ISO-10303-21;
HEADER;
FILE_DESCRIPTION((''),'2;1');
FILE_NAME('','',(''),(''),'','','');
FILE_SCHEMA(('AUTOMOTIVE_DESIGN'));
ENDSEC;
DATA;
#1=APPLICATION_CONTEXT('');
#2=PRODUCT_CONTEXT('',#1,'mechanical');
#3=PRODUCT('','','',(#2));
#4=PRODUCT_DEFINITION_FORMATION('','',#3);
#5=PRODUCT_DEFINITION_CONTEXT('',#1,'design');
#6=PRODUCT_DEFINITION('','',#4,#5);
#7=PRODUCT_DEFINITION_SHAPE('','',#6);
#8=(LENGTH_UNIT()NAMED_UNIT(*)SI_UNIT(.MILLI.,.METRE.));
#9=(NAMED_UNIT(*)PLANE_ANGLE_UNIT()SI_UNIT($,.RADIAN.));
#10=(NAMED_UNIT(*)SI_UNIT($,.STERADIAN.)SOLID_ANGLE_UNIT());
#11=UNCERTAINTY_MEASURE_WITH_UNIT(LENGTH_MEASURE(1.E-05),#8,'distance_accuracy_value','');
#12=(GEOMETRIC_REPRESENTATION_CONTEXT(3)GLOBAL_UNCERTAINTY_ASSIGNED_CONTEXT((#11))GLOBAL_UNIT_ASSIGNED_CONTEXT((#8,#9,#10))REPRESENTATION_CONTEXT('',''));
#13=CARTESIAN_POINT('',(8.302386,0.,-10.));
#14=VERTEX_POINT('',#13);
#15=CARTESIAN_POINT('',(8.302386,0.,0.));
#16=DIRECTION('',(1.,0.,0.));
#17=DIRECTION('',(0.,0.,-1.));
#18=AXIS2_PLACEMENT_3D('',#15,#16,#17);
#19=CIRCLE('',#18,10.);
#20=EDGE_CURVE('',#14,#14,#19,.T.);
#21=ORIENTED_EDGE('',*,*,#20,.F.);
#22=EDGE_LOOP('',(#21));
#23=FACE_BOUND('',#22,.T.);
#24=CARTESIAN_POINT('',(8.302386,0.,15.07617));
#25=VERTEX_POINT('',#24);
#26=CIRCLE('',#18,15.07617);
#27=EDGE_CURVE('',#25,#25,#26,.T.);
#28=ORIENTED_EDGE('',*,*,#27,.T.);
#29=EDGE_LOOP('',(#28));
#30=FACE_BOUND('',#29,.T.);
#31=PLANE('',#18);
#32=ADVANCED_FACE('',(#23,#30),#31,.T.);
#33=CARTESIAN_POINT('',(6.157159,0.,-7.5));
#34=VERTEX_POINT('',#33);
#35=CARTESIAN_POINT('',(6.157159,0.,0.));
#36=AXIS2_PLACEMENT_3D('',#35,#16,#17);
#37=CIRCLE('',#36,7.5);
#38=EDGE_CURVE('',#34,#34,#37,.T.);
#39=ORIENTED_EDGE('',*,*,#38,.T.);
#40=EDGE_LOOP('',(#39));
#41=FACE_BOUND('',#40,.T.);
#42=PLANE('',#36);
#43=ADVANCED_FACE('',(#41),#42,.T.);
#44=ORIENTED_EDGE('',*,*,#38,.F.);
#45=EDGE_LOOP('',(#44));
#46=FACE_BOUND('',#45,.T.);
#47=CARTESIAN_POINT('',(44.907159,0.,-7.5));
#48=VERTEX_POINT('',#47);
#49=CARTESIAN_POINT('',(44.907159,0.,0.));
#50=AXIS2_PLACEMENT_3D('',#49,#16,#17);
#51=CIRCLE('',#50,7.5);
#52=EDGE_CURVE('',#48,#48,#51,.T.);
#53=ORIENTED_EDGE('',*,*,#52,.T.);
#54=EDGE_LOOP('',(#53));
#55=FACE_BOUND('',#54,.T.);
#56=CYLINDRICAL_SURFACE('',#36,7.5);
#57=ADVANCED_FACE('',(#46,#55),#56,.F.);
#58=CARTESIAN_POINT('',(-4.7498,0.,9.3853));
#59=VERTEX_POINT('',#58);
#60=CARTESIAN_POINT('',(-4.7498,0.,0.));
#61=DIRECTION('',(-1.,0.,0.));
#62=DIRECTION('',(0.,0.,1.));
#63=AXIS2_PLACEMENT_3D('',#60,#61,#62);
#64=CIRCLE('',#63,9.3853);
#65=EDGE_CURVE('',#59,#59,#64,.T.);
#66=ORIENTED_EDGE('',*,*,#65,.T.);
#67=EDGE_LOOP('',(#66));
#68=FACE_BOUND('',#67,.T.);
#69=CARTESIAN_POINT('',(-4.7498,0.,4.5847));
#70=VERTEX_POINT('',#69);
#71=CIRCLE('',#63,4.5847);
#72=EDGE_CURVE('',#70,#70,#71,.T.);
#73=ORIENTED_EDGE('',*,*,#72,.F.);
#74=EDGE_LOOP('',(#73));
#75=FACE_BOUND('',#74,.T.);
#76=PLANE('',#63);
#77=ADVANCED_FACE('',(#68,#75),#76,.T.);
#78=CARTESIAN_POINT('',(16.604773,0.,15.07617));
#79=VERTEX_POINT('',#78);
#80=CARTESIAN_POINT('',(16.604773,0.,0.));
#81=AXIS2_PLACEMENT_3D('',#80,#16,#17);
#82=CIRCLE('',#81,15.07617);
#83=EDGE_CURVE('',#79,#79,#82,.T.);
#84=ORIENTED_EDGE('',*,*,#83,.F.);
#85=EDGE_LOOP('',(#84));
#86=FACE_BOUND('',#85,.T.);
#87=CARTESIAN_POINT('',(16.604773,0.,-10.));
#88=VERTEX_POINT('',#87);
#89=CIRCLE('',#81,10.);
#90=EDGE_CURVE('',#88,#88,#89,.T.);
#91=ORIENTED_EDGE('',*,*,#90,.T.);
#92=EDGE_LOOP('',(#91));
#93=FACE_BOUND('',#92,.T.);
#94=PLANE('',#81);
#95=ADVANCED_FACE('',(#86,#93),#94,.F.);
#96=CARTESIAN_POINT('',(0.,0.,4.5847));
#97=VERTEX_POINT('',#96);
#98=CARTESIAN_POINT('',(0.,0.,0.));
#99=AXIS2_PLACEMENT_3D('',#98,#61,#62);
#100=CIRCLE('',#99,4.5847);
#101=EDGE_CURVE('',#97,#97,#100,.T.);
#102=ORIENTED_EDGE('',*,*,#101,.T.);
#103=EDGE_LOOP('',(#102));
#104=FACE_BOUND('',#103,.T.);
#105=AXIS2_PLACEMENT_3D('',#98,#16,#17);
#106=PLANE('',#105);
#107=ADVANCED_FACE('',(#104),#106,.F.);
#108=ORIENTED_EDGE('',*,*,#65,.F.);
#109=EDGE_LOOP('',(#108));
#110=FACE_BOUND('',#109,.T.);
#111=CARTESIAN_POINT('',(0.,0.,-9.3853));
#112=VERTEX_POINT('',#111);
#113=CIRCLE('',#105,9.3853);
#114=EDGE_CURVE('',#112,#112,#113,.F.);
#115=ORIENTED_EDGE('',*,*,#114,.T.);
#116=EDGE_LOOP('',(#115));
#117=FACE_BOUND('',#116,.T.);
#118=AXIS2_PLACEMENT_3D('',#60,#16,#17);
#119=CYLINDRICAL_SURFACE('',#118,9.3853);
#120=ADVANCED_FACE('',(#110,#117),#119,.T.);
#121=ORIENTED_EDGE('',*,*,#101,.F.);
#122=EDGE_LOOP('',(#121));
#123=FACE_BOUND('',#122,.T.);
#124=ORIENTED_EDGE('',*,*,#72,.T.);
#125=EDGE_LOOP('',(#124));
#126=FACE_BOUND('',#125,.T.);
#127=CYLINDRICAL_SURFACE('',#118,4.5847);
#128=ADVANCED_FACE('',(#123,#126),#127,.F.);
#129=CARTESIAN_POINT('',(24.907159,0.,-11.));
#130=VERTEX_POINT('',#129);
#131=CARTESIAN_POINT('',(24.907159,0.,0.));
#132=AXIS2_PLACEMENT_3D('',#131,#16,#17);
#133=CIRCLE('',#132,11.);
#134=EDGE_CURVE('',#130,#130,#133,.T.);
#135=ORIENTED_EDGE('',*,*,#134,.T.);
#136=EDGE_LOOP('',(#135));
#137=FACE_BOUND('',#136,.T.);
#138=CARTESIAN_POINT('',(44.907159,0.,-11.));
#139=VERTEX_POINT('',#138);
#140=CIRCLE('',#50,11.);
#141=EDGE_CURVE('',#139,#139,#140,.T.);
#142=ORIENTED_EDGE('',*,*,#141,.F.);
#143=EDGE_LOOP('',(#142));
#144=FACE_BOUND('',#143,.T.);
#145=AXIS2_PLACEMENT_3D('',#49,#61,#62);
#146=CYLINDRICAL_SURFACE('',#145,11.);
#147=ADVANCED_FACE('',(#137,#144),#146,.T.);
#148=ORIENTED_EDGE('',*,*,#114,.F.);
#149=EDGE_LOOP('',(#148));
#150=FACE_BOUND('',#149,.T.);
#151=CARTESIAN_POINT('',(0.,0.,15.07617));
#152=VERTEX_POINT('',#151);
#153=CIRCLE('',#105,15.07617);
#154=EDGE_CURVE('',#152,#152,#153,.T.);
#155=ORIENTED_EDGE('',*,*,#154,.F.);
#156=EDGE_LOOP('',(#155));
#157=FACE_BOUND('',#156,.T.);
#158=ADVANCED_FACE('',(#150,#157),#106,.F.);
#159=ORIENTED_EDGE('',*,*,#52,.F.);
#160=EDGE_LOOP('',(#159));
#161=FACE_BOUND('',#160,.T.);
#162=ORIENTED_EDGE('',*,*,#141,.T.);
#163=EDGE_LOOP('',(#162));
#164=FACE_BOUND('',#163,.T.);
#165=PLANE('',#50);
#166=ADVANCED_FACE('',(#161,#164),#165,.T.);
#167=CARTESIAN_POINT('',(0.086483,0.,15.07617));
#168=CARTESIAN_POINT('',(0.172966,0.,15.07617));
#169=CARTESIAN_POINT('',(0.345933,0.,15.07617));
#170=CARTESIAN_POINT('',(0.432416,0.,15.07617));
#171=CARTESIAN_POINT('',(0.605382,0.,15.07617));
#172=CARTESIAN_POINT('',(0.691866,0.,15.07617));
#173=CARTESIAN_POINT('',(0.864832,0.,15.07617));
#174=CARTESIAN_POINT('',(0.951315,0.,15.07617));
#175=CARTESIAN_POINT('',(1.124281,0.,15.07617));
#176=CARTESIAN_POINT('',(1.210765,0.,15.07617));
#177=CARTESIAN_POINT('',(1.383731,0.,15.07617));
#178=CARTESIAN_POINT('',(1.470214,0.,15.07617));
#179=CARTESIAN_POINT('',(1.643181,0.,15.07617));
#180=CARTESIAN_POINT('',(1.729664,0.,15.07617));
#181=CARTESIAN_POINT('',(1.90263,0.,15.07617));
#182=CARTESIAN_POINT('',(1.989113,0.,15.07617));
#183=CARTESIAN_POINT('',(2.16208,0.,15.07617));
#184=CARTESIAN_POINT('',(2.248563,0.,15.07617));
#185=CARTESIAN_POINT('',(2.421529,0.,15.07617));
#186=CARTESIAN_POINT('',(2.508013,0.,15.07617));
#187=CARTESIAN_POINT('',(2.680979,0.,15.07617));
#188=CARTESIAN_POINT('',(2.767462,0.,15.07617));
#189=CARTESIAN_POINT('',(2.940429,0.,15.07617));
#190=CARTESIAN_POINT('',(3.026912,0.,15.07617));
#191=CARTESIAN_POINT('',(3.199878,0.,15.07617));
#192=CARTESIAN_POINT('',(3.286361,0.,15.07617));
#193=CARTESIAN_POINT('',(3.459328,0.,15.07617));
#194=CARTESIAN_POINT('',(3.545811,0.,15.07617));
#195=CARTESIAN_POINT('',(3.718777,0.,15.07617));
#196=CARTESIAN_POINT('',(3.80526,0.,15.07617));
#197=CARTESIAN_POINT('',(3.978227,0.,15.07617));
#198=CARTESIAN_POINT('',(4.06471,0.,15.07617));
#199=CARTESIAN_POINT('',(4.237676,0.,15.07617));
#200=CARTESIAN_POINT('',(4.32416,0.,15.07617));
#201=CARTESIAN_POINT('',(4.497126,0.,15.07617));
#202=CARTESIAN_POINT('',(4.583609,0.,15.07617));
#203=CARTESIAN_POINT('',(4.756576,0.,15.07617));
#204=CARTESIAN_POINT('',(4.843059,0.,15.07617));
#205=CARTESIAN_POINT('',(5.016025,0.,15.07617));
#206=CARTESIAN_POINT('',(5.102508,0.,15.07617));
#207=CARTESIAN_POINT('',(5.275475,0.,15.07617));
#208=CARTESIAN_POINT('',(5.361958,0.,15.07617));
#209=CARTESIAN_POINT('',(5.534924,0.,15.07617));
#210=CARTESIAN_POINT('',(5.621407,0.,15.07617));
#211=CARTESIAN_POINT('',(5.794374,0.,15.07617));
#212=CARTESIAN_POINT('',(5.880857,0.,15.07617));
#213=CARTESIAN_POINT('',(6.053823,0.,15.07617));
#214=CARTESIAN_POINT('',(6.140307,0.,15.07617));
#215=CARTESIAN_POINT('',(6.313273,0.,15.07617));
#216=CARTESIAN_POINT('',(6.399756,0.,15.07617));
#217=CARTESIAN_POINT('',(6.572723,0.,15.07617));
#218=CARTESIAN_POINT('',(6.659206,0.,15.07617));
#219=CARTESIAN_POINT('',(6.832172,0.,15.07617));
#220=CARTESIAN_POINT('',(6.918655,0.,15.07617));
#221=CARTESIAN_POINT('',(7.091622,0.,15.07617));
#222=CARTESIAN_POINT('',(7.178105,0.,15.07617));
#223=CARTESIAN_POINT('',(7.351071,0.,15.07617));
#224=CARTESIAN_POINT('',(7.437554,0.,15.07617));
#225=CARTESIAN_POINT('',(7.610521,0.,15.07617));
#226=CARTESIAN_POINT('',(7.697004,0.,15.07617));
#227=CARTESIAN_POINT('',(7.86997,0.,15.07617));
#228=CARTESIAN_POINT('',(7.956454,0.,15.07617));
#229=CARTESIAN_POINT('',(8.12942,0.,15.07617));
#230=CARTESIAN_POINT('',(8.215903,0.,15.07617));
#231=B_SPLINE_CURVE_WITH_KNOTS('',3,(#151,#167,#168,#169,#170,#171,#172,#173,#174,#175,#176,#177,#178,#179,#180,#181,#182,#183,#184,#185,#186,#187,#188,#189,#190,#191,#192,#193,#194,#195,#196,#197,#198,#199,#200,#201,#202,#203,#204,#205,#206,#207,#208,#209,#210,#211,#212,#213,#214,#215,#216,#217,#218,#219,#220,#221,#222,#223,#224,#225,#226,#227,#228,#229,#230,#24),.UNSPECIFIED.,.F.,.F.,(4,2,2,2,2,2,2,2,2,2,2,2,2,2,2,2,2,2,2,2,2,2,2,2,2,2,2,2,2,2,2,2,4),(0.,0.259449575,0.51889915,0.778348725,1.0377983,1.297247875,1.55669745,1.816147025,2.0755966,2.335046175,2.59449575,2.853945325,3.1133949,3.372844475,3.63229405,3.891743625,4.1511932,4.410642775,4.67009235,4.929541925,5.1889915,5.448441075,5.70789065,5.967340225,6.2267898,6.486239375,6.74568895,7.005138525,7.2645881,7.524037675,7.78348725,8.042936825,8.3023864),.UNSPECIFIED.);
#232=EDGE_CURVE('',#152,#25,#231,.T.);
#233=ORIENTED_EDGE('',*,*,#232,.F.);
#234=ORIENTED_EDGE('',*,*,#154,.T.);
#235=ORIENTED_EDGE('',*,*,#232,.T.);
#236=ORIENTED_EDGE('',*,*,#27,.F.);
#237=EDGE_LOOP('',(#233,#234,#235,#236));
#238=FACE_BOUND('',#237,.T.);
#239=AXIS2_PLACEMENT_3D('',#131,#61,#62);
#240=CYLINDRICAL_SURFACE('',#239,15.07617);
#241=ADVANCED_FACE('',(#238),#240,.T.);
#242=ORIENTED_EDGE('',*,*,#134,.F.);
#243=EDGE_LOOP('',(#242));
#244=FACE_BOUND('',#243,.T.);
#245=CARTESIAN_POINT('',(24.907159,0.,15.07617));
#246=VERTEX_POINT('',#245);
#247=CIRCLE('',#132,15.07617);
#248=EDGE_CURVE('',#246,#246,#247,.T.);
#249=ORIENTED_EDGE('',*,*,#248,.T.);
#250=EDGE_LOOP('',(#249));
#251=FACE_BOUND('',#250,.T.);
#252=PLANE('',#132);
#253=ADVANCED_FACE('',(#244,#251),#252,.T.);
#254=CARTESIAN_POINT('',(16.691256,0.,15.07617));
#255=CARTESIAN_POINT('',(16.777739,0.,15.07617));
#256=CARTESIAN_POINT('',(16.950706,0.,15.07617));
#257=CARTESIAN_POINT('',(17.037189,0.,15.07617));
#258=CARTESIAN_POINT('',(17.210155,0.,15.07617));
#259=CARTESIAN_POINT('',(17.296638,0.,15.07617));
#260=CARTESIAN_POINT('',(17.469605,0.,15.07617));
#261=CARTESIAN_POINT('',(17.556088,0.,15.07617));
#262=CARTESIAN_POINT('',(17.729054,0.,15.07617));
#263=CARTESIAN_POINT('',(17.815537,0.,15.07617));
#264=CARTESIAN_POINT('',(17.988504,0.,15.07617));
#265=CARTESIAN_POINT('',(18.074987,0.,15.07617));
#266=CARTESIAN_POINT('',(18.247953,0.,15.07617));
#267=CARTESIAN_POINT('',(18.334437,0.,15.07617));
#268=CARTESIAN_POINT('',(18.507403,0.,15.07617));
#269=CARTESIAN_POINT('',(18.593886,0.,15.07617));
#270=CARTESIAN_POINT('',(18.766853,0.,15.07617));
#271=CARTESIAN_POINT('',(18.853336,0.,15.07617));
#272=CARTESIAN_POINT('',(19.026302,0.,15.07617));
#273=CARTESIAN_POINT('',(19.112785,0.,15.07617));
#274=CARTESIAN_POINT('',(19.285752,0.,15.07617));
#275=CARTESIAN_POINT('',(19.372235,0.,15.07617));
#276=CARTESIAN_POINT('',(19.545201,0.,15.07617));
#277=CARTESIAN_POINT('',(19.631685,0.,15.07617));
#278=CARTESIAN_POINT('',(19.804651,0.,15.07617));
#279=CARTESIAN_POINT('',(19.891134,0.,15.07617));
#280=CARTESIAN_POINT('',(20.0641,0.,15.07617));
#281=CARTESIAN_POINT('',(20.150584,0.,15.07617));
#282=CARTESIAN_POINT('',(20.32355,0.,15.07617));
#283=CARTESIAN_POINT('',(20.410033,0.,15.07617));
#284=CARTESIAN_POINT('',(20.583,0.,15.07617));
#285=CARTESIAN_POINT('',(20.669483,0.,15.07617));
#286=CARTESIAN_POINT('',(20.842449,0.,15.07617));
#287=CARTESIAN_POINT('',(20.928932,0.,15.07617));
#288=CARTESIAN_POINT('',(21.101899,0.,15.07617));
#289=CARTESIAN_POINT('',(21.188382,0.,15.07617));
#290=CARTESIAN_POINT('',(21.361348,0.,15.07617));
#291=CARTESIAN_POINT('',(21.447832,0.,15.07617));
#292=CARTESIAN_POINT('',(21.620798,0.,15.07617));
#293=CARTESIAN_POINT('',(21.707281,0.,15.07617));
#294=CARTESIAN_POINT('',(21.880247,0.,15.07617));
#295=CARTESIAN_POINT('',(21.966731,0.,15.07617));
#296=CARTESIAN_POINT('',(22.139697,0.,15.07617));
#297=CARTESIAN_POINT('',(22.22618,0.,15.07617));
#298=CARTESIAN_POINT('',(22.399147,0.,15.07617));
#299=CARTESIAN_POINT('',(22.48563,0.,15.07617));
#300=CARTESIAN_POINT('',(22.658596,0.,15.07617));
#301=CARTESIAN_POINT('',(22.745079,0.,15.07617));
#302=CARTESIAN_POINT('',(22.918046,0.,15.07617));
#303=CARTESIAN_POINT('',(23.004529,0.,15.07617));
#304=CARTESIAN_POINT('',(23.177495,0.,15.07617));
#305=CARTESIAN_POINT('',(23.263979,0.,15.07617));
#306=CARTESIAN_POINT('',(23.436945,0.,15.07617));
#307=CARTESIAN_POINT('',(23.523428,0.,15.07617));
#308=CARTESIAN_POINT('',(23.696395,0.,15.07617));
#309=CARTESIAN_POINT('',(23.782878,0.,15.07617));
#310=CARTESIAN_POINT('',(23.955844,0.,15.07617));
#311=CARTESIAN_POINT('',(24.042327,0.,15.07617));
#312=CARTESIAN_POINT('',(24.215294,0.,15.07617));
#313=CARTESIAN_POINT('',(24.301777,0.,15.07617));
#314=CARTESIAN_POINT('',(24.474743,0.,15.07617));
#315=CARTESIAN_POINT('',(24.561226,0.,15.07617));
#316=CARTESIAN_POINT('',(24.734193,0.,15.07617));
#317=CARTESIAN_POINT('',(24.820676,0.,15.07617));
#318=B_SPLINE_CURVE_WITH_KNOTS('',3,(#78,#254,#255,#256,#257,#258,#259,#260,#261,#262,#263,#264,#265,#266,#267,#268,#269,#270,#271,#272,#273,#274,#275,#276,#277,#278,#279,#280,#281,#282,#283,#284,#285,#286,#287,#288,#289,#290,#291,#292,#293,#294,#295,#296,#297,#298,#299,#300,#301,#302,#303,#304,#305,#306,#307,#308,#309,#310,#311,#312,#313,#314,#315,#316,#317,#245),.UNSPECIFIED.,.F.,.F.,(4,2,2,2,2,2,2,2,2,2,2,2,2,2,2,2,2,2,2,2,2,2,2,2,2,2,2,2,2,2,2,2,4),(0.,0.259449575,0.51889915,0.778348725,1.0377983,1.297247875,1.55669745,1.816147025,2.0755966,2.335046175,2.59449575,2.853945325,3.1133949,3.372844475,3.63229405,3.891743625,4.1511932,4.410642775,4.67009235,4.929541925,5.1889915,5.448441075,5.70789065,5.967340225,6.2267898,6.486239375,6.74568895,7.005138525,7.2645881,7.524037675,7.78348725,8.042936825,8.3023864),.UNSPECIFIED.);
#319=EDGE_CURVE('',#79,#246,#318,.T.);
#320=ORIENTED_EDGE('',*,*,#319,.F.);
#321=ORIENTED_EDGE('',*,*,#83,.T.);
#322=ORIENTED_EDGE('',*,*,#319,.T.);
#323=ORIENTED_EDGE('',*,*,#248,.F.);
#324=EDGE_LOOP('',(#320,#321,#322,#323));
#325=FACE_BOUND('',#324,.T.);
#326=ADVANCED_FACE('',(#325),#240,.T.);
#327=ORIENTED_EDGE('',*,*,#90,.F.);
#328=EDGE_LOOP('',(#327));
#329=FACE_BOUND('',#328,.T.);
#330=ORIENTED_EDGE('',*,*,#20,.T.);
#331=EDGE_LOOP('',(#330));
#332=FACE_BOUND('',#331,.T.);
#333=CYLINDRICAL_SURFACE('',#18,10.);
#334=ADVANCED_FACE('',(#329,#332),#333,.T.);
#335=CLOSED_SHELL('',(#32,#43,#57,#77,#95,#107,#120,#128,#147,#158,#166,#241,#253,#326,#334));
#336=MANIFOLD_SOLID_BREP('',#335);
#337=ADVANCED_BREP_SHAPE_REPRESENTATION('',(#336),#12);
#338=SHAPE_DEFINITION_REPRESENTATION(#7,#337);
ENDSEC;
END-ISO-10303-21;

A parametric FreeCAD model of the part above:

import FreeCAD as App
import Part
import Sketcher
from FreeCAD import Vector

doc = App.newDocument("Part")
body = doc.addObject("PartDesign::Body", "Body")

# Sketch on YZ plane
sketch1 = body.newObject("Sketcher::SketchObject", "Sketch")
sketch1.AttachmentSupport = (doc.getObject("YZ_Plane"), [""])
sketch1.MapMode = "FlatFace"
sketch1.addGeometry(Part.Circle(Vector(0, 0, 0), Vector(0, 0, 1), 15), False)
sketch1.addConstraint(Sketcher.Constraint("Coincident", 0, 3, -1, 1))
sketch1.addConstraint(Sketcher.Constraint("Diameter", 0, 30.15234))
pad1 = body.newObject("PartDesign::Pad", "Pad")
pad1.Profile = sketch1
pad1.Length = 24.907159

# Sketch on YZ plane
sketch2 = body.newObject("Sketcher::SketchObject", "Sketch001")
sketch2.AttachmentSupport = (doc.getObject("YZ_Plane"), [""])
sketch2.MapMode = "FlatFace"
sketch2.addGeometry(Part.Circle(Vector(0, 0, 0), Vector(0, 0, 1), 9.4), False)
sketch2.addGeometry(Part.Circle(Vector(0, 0, 0), Vector(0, 0, 1), 4.6), False)
sketch2.addConstraint(Sketcher.Constraint("Coincident", 0, 3, -1, 1))
sketch2.addConstraint(Sketcher.Constraint("Coincident", 1, 3, -1, 1))
sketch2.addConstraint(Sketcher.Constraint("Diameter", 0, 18.7706))
sketch2.addConstraint(Sketcher.Constraint("Diameter", 1, 9.1694))
pad2 = body.newObject("PartDesign::Pad", "Pad001")
pad2.Profile = sketch2
pad2.Length = 4.7498
pad2.Reversed = True

# Sketch on YZ plane
sketch3 = body.newObject("Sketcher::SketchObject", "Sketch002")
sketch3.AttachmentSupport = (doc.getObject("YZ_Plane"), [""])
sketch3.MapMode = "FlatFace"
sketch3.AttachmentOffset = App.Placement(Vector(0, 0, 24.907159), App.Rotation())
sketch3.addGeometry(Part.Circle(Vector(0, 0, 0), Vector(0, 0, 1), 8), False)
sketch3.addConstraint(Sketcher.Constraint("Coincident", 0, 3, -1, 1))
sketch3.addConstraint(Sketcher.Constraint("Diameter", 0, 15.0))
pocket1 = body.newObject("PartDesign::Pocket", "Pocket")
pocket1.Profile = sketch3
pocket1.Length = 18.75

# Sketch on YZ plane
sketch4 = body.newObject("Sketcher::SketchObject", "Sketch003")
sketch4.AttachmentSupport = (doc.getObject("YZ_Plane"), [""])
sketch4.MapMode = "FlatFace"
sketch4.AttachmentOffset = App.Placement(Vector(0, 0, 44.907159), App.Rotation())
sketch4.addGeometry(Part.Circle(Vector(0, 0, 0), Vector(0, 0, 1), 11), False)
sketch4.addGeometry(Part.Circle(Vector(0, 0, 0), Vector(0, 0, 1), 8), False)
sketch4.addConstraint(Sketcher.Constraint("Coincident", 0, 3, -1, 1))
sketch4.addConstraint(Sketcher.Constraint("Coincident", 1, 3, -1, 1))
sketch4.addConstraint(Sketcher.Constraint("Diameter", 0, 22.0))
sketch4.addConstraint(Sketcher.Constraint("Diameter", 1, 15.0))
pad3 = body.newObject("PartDesign::Pad", "Pad002")
pad3.Profile = sketch4
pad3.Length = 20
pad3.Reversed = True

# Sketch on YZ plane
sketch5 = body.newObject("Sketcher::SketchObject", "Sketch004")
sketch5.AttachmentSupport = (doc.getObject("YZ_Plane"), [""])
sketch5.MapMode = "FlatFace"
sketch5.AttachmentOffset = App.Placement(Vector(0, 0, 8.302386), App.Rotation())
sketch5.addGeometry(Part.Circle(Vector(0, 0, 0), Vector(0, 0, 1), 15), False)
sketch5.addGeometry(Part.Circle(Vector(0, 0, 0), Vector(0, 0, 1), 10), False)
sketch5.addConstraint(Sketcher.Constraint("Coincident", 0, 3, -1, 1))
sketch5.addConstraint(Sketcher.Constraint("Coincident", 1, 3, -1, 1))
sketch5.addConstraint(Sketcher.Constraint("Diameter", 1, 20.0))
sketch5.addConstraint(Sketcher.Constraint("Diameter", 0, 30.15234))
pocket2 = body.newObject("PartDesign::Pocket", "Pocket001")
pocket2.Profile = sketch5
pocket2.Length = 8.302386
pocket2.Reversed = True

doc.recompute()
